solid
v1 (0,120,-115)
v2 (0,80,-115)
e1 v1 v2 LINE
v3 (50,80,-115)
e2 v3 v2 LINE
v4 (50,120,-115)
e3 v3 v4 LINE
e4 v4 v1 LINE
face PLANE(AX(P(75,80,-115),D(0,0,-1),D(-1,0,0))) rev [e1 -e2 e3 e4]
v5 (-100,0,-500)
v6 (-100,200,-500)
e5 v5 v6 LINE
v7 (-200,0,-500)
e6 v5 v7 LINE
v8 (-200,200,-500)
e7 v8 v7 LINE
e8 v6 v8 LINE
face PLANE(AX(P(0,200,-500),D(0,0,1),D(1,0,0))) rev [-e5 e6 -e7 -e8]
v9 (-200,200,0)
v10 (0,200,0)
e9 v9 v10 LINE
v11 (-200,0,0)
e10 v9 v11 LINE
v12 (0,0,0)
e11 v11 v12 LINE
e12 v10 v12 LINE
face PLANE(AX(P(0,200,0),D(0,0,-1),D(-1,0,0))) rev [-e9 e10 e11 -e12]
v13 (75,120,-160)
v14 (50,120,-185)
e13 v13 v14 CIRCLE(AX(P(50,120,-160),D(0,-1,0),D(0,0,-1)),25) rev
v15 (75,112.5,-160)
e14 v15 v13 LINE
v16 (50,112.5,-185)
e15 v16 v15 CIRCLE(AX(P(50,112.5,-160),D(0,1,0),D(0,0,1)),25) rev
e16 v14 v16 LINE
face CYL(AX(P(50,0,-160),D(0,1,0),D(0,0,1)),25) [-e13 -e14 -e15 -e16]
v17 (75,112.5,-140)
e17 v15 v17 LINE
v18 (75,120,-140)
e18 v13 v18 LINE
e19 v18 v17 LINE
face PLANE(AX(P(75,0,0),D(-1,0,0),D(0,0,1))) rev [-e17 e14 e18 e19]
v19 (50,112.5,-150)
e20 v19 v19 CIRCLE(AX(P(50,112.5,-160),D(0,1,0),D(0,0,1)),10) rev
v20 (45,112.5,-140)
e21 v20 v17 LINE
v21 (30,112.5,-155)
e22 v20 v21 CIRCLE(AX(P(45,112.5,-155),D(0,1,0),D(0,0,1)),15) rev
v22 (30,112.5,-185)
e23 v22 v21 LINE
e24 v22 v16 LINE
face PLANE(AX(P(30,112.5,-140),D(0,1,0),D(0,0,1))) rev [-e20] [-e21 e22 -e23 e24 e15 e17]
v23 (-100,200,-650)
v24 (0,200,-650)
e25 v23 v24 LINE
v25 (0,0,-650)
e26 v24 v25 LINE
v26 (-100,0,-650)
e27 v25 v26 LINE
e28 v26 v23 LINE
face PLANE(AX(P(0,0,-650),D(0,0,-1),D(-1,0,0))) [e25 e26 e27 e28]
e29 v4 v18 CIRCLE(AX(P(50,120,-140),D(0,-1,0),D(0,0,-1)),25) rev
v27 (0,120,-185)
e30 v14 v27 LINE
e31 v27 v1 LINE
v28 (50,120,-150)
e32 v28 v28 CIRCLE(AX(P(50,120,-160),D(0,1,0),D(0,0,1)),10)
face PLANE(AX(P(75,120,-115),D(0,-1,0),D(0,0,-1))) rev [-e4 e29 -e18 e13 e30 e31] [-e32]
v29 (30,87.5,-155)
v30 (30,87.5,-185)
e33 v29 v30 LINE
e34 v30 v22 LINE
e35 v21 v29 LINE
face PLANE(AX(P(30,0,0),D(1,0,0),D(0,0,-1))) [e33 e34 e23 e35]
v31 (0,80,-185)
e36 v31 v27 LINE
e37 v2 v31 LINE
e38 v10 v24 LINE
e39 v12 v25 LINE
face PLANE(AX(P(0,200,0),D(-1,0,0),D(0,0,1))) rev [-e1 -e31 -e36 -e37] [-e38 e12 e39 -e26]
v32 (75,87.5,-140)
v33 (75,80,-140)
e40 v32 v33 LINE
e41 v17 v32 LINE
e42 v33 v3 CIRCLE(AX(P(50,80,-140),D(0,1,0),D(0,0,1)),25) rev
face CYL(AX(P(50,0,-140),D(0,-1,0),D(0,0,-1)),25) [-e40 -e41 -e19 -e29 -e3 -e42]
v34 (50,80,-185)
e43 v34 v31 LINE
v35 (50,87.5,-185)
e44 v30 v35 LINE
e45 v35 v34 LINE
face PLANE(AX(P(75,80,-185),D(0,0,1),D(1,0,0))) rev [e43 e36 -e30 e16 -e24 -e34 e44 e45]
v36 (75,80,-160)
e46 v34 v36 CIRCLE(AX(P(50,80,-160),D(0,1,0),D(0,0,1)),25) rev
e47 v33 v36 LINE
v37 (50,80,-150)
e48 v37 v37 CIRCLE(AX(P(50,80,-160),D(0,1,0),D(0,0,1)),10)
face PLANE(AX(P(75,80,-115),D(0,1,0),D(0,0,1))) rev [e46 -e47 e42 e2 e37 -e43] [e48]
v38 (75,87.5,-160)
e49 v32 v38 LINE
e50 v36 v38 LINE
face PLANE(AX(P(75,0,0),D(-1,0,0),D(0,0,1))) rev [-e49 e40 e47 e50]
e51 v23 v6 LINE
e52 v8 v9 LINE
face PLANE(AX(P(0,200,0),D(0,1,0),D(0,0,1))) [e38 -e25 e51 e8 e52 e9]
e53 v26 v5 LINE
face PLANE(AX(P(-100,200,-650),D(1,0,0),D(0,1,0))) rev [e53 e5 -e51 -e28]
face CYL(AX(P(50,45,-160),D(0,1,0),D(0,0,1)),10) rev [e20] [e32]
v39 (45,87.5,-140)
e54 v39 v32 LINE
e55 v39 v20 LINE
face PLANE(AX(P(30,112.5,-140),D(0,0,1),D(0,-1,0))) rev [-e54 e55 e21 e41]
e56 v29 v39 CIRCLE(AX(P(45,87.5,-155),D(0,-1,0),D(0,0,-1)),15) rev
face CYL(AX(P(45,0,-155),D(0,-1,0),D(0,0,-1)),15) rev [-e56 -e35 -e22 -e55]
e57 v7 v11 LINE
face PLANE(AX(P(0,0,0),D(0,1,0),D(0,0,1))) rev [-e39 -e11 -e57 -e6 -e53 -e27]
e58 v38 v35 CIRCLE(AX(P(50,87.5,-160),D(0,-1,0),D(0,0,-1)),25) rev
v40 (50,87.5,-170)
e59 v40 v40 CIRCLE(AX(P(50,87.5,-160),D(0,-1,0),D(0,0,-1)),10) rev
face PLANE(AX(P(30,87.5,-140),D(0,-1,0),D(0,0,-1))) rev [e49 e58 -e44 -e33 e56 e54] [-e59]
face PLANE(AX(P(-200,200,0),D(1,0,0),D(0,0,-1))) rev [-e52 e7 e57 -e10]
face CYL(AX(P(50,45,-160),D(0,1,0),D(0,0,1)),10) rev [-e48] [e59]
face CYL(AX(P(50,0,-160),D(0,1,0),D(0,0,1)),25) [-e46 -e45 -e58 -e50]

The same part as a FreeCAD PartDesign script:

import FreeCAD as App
import Part
import Sketcher
Q = App.Units.Quantity


def edges_at(feature, points):
    """Names of the edges that pass closest to the given points."""
    edges = feature.Shape.Edges
    near = lambda p: min(range(len(edges)), key=lambda i: edges[i].distToShape(Part.Vertex(*p))[0])
    return sorted({f"Edge{near(p) + 1}" for p in points})


def add_polygon(sketch, points):
    """Adds a closed chain of lines whose ends are joined by coincident constraints."""
    first, n = sketch.GeometryCount, len(points)
    for a, b in zip(points, points[1:] + points[:1]):
        sketch.addGeometry(Part.LineSegment(App.Vector(*a, 0), App.Vector(*b, 0)), False)
    for i in range(n):
        sketch.addConstraint(Sketcher.Constraint("Coincident", first + i, 2, first + (i + 1) % n, 1))

doc = App.newDocument("Part")
body = doc.addObject("PartDesign::Body", "Body")

sketch1 = body.newObject("Sketcher::SketchObject", "Sketch")
sketch1.AttachmentSupport = (doc.getObject("XZ_Plane"), [""])
sketch1.MapMode = "FlatFace"
add_polygon(sketch1, [(-200, -500), (-200, 0), (0, 0), (0, -500)])
sketch1.addConstraint(Sketcher.Constraint("Vertical", 0))
sketch1.addConstraint(Sketcher.Constraint("Horizontal", 1))
sketch1.addConstraint(Sketcher.Constraint("Vertical", 2))
sketch1.addConstraint(Sketcher.Constraint("Horizontal", 3))
sketch1.addConstraint(Sketcher.Constraint("Coincident", 1, 2, -1, 1))
sketch1.addConstraint(Sketcher.Constraint("DistanceX", 1, 1, 1, 2, Q("200 mm")))
sketch1.addConstraint(Sketcher.Constraint("DistanceY", 0, 1, 0, 2, Q("500 mm")))
pad1 = body.newObject("PartDesign::Pad", "Pad")
pad1.Profile = sketch1
pad1.Length = 200
pad1.Reversed = True

sketch2 = body.newObject("Sketcher::SketchObject", "Sketch001")
sketch2.AttachmentSupport = (doc.getObject("YZ_Plane"), [""])
sketch2.MapMode = "FlatFace"
add_polygon(sketch2, [(120, -115), (80, -115), (80, -185), (120, -185)])
sketch2.addConstraint(Sketcher.Constraint("Horizontal", 0))
sketch2.addConstraint(Sketcher.Constraint("Vertical", 1))
sketch2.addConstraint(Sketcher.Constraint("Horizontal", 2))
sketch2.addConstraint(Sketcher.Constraint("Vertical", 3))
sketch2.addConstraint(Sketcher.Constraint("DistanceX", 0, 2, 0, 1, Q("40 mm")))
sketch2.addConstraint(Sketcher.Constraint("DistanceY", 1, 2, 1, 1, Q("70 mm")))
sketch2.addConstraint(Sketcher.Constraint("DistanceX", -1, 1, 0, 2, Q("80 mm")))
sketch2.addConstraint(Sketcher.Constraint("DistanceY", 0, 2, -1, 1, Q("115 mm")))
pad2 = body.newObject("PartDesign::Pad", "Pad001")
pad2.Profile = sketch2
pad2.Length = 75
doc.recompute()

fillet = body.newObject("PartDesign::Fillet", "Fillet")
fillet.Base = (pad2, edges_at(pad2, [(75, 100, -185), (75, 100, -115)]))
fillet.Radius = 25

sketch3 = body.newObject("Sketcher::SketchObject", "Sketch002")
sketch3.AttachmentSupport = (doc.getObject("XZ_Plane"), [""])
sketch3.MapMode = "FlatFace"
sketch3.AttachmentOffset = App.Placement(App.Vector(0, 0, -120), App.Rotation())
sketch3.addGeometry(Part.Circle(App.Vector(50, -160, 0), App.Vector(0, 0, 1), 10), False)
sketch3.addConstraint(Sketcher.Constraint("Diameter", 0, Q("20 mm")))
sketch3.addConstraint(Sketcher.Constraint("DistanceX", -1, 1, 0, 3, Q("50 mm")))
sketch3.addConstraint(Sketcher.Constraint("DistanceY", 0, 3, -1, 1, Q("160 mm")))
pocket1 = body.newObject("PartDesign::Pocket", "Pocket")
pocket1.Profile = sketch3
pocket1.Length = 75
pocket1.Reversed = True

sketch4 = body.newObject("Sketcher::SketchObject", "Sketch003")
sketch4.AttachmentSupport = (doc.getObject("XY_Plane"), [""])
sketch4.MapMode = "FlatFace"
sketch4.AttachmentOffset = App.Placement(App.Vector(0, 0, -500), App.Rotation())
add_polygon(sketch4, [(0, 200), (0, 0), (-100, 0), (-100, 200)])
sketch4.addConstraint(Sketcher.Constraint("Vertical", 0))
sketch4.addConstraint(Sketcher.Constraint("Horizontal", 1))
sketch4.addConstraint(Sketcher.Constraint("Vertical", 2))
sketch4.addConstraint(Sketcher.Constraint("Horizontal", 3))
sketch4.addConstraint(Sketcher.Constraint("Coincident", 0, 2, -1, 1))
sketch4.addConstraint(Sketcher.Constraint("DistanceX", 1, 2, 1, 1, Q("100 mm")))
sketch4.addConstraint(Sketcher.Constraint("DistanceY", 0, 2, 0, 1, Q("200 mm")))
pad3 = body.newObject("PartDesign::Pad", "Pad002")
pad3.Profile = sketch4
pad3.Length = 150
pad3.Reversed = True

sketch5 = body.newObject("Sketcher::SketchObject", "Sketch004")
sketch5.AttachmentSupport = (doc.getObject("YZ_Plane"), [""])
sketch5.MapMode = "FlatFace"
sketch5.AttachmentOffset = App.Placement(App.Vector(0, 0, 75), App.Rotation())
add_polygon(sketch5, [(112.5, -140), (87.5, -140), (87.5, -185), (112.5, -185)])
sketch5.addConstraint(Sketcher.Constraint("Horizontal", 0))
sketch5.addConstraint(Sketcher.Constraint("Vertical", 1))
sketch5.addConstraint(Sketcher.Constraint("Horizontal", 2))
sketch5.addConstraint(Sketcher.Constraint("Vertical", 3))
sketch5.addConstraint(Sketcher.Constraint("DistanceX", 0, 2, 0, 1, Q("25 mm")))
sketch5.addConstraint(Sketcher.Constraint("DistanceY", 1, 2, 1, 1, Q("45 mm")))
sketch5.addConstraint(Sketcher.Constraint("DistanceY", 0, 2, -1, 1, Q("140 mm")))
sketch5.addConstraint(Sketcher.Constraint("DistanceX", -1, 1, 0, 2, Q("87.5 mm")))
pocket2 = body.newObject("PartDesign::Pocket", "Pocket001")
pocket2.Profile = sketch5
pocket2.Length = 45
doc.recompute()

fillet2 = body.newObject("PartDesign::Fillet", "Fillet001")
fillet2.Base = (pocket2, edges_at(pocket2, [(30, 100, -140)]))
fillet2.Radius = 15

doc.recompute()
